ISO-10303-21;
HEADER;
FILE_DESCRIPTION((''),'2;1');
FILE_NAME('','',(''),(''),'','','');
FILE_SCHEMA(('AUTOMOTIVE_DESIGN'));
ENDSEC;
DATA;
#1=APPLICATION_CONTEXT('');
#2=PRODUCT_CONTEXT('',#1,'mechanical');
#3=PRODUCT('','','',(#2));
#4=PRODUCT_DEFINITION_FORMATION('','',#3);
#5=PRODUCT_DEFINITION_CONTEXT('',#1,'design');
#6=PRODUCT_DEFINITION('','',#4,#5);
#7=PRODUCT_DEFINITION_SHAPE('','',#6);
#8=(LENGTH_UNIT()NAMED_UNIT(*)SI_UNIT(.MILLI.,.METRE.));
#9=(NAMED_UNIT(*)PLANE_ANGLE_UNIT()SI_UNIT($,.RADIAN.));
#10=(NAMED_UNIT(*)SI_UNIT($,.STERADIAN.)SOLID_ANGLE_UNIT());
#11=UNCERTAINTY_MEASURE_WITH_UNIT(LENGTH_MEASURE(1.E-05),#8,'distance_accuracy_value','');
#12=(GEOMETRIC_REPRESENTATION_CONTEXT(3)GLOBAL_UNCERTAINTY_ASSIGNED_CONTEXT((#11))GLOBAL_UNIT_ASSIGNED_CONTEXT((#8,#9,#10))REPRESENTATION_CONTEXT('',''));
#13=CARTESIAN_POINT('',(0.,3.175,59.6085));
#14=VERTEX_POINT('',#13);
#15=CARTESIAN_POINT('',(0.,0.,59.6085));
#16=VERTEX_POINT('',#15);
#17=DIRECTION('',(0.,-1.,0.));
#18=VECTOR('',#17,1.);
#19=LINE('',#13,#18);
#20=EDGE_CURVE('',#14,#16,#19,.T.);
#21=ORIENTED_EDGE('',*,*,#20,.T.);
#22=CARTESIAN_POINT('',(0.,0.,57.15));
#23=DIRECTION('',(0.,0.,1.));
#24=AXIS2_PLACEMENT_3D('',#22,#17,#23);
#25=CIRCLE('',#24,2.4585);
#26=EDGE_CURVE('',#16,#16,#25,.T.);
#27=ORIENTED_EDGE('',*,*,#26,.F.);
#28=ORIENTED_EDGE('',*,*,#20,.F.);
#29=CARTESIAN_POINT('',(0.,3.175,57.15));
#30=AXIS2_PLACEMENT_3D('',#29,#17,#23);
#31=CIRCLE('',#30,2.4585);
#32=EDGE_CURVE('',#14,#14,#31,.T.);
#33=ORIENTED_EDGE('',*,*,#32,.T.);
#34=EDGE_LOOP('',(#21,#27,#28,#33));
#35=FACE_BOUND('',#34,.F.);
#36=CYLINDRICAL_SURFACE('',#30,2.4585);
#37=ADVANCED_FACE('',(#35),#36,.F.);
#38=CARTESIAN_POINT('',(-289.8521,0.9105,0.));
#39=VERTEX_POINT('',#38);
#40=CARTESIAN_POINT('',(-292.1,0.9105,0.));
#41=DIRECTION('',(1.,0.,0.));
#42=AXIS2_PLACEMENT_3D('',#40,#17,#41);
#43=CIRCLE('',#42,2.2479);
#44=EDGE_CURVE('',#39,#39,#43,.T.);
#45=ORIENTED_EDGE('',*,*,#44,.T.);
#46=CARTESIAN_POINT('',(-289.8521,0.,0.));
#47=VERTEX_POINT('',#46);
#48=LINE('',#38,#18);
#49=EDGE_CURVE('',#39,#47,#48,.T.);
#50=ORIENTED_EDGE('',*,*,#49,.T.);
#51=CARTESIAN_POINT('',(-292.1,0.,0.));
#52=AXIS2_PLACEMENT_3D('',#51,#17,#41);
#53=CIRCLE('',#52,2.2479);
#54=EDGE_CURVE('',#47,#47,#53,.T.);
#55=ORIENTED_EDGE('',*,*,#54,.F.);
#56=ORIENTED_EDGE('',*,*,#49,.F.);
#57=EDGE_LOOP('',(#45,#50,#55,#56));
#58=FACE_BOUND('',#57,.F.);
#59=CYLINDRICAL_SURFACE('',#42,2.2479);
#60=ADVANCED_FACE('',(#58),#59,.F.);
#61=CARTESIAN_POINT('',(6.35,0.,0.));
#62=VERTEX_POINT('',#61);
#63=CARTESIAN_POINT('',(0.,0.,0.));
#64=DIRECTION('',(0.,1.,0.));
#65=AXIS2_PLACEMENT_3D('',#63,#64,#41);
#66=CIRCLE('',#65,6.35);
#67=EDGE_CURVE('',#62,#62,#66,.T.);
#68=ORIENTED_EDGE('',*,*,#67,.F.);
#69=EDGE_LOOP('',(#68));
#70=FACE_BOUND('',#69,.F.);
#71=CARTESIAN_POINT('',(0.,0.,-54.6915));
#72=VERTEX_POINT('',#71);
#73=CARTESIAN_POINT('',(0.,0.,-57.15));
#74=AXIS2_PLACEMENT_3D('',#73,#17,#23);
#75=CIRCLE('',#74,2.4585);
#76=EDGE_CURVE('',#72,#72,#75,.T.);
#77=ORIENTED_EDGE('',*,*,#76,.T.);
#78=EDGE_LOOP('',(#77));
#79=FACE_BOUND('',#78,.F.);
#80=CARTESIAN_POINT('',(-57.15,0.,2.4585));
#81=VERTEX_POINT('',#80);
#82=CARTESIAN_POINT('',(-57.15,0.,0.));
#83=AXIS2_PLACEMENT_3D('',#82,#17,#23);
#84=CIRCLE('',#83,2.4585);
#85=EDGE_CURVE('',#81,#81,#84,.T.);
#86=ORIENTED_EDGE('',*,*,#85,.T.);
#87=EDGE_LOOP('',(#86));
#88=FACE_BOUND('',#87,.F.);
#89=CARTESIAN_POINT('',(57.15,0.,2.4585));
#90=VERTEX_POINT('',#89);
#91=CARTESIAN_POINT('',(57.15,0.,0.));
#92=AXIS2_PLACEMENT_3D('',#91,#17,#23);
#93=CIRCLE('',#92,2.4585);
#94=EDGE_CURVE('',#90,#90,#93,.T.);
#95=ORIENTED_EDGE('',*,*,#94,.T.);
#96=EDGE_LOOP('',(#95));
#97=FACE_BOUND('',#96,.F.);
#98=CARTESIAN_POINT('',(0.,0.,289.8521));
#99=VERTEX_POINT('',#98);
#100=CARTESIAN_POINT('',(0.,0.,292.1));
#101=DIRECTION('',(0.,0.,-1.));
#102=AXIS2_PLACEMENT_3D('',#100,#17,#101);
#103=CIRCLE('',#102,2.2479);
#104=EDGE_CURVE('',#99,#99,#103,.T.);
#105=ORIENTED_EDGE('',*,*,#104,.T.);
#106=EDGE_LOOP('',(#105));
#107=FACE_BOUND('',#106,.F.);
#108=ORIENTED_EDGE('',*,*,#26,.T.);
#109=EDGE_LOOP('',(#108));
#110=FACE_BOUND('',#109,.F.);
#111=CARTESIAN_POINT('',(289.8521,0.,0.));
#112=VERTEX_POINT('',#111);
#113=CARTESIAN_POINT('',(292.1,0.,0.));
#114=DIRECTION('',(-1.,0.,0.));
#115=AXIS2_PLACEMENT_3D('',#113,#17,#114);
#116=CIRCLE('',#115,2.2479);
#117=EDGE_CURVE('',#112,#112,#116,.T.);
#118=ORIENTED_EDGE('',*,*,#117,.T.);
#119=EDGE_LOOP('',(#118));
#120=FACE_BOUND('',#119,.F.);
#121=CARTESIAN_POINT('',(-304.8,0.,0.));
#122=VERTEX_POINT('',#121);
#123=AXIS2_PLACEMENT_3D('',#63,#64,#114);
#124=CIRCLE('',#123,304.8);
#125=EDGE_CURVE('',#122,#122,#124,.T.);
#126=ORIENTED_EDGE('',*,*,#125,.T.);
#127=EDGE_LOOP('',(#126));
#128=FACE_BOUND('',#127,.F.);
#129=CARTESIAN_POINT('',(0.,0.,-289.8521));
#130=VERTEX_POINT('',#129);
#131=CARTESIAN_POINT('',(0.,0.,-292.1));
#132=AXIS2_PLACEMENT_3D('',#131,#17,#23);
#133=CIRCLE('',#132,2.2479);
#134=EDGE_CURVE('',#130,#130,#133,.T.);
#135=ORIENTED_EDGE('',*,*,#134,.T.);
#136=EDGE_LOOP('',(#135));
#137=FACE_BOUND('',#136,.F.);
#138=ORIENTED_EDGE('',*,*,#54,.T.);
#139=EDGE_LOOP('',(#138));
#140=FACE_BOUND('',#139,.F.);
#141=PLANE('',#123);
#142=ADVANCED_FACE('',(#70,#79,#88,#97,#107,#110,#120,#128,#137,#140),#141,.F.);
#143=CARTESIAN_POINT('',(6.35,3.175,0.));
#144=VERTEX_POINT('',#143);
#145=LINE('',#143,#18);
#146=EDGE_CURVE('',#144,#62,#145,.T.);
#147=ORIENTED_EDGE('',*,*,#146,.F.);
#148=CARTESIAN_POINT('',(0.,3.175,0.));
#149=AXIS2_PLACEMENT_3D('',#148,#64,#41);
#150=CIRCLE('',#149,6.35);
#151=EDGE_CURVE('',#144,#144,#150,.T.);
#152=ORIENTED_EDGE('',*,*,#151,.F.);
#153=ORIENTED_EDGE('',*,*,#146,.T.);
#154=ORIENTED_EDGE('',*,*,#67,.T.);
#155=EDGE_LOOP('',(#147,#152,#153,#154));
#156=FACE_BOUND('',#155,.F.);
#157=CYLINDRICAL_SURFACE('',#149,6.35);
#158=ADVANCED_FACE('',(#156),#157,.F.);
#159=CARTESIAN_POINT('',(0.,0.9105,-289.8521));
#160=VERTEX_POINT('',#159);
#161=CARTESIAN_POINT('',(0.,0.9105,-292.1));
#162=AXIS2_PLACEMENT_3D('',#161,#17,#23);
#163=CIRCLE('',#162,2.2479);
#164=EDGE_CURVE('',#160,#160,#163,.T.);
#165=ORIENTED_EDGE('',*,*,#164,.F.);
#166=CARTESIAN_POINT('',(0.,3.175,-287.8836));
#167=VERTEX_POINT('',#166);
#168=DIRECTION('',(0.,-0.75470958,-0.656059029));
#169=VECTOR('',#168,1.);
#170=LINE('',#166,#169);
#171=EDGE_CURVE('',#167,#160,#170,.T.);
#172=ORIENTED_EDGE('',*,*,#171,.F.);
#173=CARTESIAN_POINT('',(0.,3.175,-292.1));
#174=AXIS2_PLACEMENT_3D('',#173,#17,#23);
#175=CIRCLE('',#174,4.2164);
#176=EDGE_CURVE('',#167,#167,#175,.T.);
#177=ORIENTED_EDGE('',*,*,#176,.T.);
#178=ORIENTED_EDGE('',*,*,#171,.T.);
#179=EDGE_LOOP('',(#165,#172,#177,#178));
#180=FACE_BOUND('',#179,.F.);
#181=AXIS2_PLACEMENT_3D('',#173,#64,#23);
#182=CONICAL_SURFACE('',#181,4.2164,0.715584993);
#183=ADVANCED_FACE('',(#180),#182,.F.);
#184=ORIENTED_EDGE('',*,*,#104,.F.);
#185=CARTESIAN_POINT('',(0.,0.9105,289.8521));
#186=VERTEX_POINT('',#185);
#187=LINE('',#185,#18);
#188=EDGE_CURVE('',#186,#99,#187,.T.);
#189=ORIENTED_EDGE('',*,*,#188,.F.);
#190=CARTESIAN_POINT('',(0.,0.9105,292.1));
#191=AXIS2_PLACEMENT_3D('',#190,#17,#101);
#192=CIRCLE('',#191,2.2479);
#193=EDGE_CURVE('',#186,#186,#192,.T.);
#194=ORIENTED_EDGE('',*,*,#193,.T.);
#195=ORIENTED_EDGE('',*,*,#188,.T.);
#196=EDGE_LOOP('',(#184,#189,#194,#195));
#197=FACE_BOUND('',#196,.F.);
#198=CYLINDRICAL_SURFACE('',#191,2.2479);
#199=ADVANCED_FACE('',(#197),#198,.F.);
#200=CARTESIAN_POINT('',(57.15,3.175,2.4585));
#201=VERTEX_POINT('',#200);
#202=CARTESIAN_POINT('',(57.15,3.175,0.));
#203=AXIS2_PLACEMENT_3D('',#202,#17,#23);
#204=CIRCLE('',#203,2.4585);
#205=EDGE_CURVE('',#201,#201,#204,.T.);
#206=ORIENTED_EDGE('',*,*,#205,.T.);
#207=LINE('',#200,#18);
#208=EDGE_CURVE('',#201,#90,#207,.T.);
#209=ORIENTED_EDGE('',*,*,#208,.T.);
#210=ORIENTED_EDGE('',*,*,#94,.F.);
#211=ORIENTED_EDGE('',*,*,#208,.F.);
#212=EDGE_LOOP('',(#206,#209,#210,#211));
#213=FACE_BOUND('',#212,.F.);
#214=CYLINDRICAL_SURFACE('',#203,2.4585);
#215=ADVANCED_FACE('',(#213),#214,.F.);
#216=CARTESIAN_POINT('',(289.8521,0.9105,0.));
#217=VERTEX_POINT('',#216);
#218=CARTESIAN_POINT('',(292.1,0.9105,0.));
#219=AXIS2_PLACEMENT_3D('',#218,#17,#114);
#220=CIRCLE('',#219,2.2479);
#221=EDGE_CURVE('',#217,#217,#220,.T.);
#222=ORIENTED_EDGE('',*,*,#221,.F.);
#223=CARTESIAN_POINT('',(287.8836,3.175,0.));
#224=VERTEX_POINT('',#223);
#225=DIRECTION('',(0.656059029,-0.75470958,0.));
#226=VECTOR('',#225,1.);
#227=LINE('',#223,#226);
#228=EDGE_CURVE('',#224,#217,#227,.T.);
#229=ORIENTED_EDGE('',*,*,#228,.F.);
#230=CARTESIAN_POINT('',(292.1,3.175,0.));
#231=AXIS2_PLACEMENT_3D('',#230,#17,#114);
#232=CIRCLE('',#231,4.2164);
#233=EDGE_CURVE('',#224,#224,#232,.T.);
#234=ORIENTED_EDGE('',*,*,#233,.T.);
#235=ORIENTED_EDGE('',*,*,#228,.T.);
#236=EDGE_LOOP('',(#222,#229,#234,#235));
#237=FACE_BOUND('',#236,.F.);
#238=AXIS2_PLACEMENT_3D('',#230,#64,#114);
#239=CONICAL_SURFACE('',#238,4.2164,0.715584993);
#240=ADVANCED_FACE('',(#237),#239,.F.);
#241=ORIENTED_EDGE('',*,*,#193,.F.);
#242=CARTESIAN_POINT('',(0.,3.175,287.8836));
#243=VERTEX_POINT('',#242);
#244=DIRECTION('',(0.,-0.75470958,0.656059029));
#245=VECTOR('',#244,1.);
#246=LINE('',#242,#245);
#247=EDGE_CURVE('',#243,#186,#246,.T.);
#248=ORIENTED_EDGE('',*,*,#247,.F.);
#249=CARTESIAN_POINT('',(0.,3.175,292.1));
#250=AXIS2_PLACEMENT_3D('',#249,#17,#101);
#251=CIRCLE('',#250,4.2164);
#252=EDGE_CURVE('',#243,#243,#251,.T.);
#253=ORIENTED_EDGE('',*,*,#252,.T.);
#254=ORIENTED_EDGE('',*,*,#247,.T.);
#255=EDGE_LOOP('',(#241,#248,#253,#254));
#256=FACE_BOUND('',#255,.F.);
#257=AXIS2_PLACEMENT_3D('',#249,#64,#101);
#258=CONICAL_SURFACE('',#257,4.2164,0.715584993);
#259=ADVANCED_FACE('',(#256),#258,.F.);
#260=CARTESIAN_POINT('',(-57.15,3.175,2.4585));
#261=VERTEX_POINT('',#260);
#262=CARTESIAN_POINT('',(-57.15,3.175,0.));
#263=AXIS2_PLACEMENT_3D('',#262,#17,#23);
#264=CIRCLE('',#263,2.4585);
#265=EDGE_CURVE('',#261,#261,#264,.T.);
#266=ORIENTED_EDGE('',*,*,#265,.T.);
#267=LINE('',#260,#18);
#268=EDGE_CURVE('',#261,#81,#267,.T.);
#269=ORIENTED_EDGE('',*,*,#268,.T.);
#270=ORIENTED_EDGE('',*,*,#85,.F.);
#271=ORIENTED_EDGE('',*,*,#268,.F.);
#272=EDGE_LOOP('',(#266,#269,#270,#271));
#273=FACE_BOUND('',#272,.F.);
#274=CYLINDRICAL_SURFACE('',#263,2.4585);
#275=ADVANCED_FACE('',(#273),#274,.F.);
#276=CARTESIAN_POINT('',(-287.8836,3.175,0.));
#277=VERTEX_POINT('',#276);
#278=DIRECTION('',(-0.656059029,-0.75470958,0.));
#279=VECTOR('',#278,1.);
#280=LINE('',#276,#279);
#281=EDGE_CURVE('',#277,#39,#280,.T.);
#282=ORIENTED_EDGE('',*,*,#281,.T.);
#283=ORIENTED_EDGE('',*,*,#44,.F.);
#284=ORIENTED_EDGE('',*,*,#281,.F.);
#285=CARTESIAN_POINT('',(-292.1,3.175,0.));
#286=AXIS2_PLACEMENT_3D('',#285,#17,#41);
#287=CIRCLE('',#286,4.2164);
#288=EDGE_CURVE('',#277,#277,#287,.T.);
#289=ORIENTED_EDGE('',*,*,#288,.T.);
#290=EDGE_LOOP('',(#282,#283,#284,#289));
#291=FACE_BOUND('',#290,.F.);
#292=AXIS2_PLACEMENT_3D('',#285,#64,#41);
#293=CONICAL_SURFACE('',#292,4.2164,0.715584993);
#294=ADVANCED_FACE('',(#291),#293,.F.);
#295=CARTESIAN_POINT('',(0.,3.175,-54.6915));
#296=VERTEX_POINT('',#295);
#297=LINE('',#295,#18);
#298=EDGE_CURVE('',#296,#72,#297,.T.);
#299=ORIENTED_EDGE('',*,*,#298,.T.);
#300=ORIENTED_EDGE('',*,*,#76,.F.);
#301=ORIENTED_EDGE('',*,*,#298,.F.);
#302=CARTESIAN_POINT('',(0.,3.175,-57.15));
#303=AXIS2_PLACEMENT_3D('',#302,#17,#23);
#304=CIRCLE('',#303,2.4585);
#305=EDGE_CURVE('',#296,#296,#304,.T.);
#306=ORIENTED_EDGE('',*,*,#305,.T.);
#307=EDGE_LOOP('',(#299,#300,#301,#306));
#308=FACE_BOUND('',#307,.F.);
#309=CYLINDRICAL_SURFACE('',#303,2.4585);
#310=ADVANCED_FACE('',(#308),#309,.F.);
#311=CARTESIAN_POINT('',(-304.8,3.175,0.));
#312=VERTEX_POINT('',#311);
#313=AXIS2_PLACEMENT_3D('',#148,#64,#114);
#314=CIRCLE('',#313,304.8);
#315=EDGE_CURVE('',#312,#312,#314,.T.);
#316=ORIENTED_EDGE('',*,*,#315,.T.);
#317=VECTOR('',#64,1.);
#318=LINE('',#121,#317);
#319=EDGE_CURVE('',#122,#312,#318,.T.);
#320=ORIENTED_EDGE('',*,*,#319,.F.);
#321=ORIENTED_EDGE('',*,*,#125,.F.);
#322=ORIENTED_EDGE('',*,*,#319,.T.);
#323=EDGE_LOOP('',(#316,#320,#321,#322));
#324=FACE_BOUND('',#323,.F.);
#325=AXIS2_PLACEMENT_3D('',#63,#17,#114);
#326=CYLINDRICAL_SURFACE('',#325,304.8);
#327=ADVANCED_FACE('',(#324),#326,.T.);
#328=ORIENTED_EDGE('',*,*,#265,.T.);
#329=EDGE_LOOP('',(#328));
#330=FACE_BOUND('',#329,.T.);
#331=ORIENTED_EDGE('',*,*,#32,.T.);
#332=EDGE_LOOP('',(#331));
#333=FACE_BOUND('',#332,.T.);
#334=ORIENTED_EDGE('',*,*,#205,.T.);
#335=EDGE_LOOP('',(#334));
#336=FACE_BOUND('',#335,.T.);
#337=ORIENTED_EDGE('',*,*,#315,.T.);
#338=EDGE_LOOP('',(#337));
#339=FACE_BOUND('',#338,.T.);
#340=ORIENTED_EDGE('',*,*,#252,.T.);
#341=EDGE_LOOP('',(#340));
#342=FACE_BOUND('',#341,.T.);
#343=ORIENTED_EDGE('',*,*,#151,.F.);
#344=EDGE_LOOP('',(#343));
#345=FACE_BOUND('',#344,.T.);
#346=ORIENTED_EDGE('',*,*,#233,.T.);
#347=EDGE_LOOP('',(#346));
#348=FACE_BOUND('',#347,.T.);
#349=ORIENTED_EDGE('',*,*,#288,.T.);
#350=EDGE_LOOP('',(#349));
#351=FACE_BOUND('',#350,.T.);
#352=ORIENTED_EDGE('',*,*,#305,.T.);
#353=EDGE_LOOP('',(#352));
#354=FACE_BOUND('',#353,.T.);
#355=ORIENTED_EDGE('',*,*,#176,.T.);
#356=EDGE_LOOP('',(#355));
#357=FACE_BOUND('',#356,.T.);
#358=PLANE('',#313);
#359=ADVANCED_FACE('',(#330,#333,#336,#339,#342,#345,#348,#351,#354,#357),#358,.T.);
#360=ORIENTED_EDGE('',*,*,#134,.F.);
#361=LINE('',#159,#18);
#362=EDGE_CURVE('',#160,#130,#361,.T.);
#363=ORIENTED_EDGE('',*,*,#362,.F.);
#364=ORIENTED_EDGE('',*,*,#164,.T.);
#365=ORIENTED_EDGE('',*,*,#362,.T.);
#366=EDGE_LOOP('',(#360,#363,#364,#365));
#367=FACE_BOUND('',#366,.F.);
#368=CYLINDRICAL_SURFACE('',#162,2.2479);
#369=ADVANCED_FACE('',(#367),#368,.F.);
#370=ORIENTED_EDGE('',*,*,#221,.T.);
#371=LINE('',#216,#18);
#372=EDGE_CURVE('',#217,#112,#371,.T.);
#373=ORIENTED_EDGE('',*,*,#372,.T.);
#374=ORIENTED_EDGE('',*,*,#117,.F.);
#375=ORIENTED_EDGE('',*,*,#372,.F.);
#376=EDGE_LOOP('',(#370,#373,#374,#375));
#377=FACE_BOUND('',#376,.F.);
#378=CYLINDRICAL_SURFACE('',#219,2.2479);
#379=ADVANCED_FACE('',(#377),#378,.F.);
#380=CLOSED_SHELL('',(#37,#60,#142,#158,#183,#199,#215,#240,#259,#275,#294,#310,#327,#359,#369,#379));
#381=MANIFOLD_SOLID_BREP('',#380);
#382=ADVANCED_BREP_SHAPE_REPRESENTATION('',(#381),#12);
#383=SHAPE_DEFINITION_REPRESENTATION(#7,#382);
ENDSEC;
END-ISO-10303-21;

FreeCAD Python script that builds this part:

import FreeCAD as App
import Part
import Sketcher
Q = App.Units.Quantity

doc = App.newDocument("Part")
body = doc.addObject("PartDesign::Body", "Body")

sketch1 = body.newObject("Sketcher::SketchObject", "Sketch")
sketch1.AttachmentSupport = (doc.getObject("XZ_Plane"), [""])
sketch1.MapMode = "FlatFace"
sketch1.addGeometry(Part.Circle(App.Vector(0, 0, 0), App.Vector(0, 0, 1), 304.8), False)
sketch1.addConstraint([
    Sketcher.Constraint("Coincident", 0, 3, -1, 1),
    Sketcher.Constraint("Diameter", 0, Q("24 in")),
])
pad1 = body.newObject("PartDesign::Pad", "Pad")
pad1.Profile = sketch1
pad1.Length = Q("0.125 in")
pad1.Reversed = True

sketch2 = body.newObject("Sketcher::SketchObject", "Sketch001")
sketch2.AttachmentSupport = (doc.getObject("XZ_Plane"), [""])
sketch2.MapMode = "FlatFace"
sketch2.AttachmentOffset = App.Placement(App.Vector(0, 0, -0.125 * 25.4), App.Rotation())
sketch2.addGeometry(Part.Circle(App.Vector(0, 0, 0), App.Vector(0, 0, 1), 6.35), False)
sketch2.addConstraint([
    Sketcher.Constraint("Coincident", 0, 3, -1, 1),
    Sketcher.Constraint("Diameter", 0, Q("0.5 in")),
])
pocket1 = body.newObject("PartDesign::Pocket", "Pocket")
pocket1.Profile = sketch2
pocket1.Length = Q("0.125 in")
pocket1.Reversed = True

sketch3 = body.newObject("Sketcher::SketchObject", "Sketch002")
sketch3.AttachmentSupport = (doc.getObject("XZ_Plane"), [""])
sketch3.MapMode = "FlatFace"
sketch3.AttachmentOffset = App.Placement(App.Vector(0, 0, -0.125 * 25.4), App.Rotation())
sketch3.addGeometry(Part.Circle(App.Vector(0, -292.1, 0), App.Vector(0, 0, 1), 2.2479), False)
sketch3.addConstraint([
    Sketcher.Constraint("PointOnObject", 0, 3, -2),
    Sketcher.Constraint("Diameter", 0, Q("0.177 in")),
    Sketcher.Constraint("DistanceY", 0, 3, -1, 1, Q("11.5 in")),
])
doc.recompute()
hole = body.newObject("PartDesign::Hole", "Hole")
hole.Profile = sketch3
hole.ThreadType = "None"
hole.Diameter = Q("0.177 in")
hole.DepthType = "ThroughAll"
hole.HoleCutType = "Countersink"
hole.HoleCutDiameter = Q("0.332 in")
hole.HoleCutCountersinkAngle = 82
hole.Reversed = True
doc.recompute()

polarpattern = body.newObject("PartDesign::PolarPattern", "PolarPattern")
polarpattern.Originals = [hole]
polarpattern.Axis = (doc.getObject("Y_Axis"), [""])
polarpattern.Angle = 360
polarpattern.Occurrences = 4
body.Tip = polarpattern

sketch4 = body.newObject("Sketcher::SketchObject", "Sketch003")
sketch4.AttachmentSupport = (doc.getObject("XZ_Plane"), [""])
sketch4.MapMode = "FlatFace"
sketch4.AttachmentOffset = App.Placement(App.Vector(0, 0, -0.125 * 25.4), App.Rotation())
sketch4.addGeometry([
    Part.Circle(App.Vector(0, -57.15, 0), App.Vector(0, 0, 1), 2.4585),
    Part.Circle(App.Vector(57.15, 0, 0), App.Vector(0, 0, 1), 2.4585),
    Part.Circle(App.Vector(0, 57.15, 0), App.Vector(0, 0, 1), 2.4585),
    Part.Circle(App.Vector(-57.15, 0, 0), App.Vector(0, 0, 1), 2.4585),
], False)
sketch4.addConstraint([
    Sketcher.Constraint("Equal", 0, 1),
    Sketcher.Constraint("Equal", 1, 2),
    Sketcher.Constraint("Equal", 2, 3),
    Sketcher.Constraint("Symmetric", 0, 3, 2, 3, -1, 1),
    Sketcher.Constraint("Symmetric", 1, 3, 3, 3, -1, 1),
    Sketcher.Constraint("PointOnObject", 0, 3, -2),
    Sketcher.Constraint("PointOnObject", 1, 3, -1),
    Sketcher.Constraint("DistanceY", 0, 3, 2, 3, Q("4.5 in")),
    Sketcher.Constraint("DistanceX", 3, 3, 1, 3, Q("4.5 in")),
    Sketcher.Constraint("Diameter", 0, 4.917),
])
doc.recompute()
hole2 = body.newObject("PartDesign::Hole", "Hole001")
hole2.Profile = sketch4
hole2.ThreadType = "None"
hole2.Diameter = 4.917
hole2.DepthType = "ThroughAll"
hole2.Reversed = True

doc.recompute()
